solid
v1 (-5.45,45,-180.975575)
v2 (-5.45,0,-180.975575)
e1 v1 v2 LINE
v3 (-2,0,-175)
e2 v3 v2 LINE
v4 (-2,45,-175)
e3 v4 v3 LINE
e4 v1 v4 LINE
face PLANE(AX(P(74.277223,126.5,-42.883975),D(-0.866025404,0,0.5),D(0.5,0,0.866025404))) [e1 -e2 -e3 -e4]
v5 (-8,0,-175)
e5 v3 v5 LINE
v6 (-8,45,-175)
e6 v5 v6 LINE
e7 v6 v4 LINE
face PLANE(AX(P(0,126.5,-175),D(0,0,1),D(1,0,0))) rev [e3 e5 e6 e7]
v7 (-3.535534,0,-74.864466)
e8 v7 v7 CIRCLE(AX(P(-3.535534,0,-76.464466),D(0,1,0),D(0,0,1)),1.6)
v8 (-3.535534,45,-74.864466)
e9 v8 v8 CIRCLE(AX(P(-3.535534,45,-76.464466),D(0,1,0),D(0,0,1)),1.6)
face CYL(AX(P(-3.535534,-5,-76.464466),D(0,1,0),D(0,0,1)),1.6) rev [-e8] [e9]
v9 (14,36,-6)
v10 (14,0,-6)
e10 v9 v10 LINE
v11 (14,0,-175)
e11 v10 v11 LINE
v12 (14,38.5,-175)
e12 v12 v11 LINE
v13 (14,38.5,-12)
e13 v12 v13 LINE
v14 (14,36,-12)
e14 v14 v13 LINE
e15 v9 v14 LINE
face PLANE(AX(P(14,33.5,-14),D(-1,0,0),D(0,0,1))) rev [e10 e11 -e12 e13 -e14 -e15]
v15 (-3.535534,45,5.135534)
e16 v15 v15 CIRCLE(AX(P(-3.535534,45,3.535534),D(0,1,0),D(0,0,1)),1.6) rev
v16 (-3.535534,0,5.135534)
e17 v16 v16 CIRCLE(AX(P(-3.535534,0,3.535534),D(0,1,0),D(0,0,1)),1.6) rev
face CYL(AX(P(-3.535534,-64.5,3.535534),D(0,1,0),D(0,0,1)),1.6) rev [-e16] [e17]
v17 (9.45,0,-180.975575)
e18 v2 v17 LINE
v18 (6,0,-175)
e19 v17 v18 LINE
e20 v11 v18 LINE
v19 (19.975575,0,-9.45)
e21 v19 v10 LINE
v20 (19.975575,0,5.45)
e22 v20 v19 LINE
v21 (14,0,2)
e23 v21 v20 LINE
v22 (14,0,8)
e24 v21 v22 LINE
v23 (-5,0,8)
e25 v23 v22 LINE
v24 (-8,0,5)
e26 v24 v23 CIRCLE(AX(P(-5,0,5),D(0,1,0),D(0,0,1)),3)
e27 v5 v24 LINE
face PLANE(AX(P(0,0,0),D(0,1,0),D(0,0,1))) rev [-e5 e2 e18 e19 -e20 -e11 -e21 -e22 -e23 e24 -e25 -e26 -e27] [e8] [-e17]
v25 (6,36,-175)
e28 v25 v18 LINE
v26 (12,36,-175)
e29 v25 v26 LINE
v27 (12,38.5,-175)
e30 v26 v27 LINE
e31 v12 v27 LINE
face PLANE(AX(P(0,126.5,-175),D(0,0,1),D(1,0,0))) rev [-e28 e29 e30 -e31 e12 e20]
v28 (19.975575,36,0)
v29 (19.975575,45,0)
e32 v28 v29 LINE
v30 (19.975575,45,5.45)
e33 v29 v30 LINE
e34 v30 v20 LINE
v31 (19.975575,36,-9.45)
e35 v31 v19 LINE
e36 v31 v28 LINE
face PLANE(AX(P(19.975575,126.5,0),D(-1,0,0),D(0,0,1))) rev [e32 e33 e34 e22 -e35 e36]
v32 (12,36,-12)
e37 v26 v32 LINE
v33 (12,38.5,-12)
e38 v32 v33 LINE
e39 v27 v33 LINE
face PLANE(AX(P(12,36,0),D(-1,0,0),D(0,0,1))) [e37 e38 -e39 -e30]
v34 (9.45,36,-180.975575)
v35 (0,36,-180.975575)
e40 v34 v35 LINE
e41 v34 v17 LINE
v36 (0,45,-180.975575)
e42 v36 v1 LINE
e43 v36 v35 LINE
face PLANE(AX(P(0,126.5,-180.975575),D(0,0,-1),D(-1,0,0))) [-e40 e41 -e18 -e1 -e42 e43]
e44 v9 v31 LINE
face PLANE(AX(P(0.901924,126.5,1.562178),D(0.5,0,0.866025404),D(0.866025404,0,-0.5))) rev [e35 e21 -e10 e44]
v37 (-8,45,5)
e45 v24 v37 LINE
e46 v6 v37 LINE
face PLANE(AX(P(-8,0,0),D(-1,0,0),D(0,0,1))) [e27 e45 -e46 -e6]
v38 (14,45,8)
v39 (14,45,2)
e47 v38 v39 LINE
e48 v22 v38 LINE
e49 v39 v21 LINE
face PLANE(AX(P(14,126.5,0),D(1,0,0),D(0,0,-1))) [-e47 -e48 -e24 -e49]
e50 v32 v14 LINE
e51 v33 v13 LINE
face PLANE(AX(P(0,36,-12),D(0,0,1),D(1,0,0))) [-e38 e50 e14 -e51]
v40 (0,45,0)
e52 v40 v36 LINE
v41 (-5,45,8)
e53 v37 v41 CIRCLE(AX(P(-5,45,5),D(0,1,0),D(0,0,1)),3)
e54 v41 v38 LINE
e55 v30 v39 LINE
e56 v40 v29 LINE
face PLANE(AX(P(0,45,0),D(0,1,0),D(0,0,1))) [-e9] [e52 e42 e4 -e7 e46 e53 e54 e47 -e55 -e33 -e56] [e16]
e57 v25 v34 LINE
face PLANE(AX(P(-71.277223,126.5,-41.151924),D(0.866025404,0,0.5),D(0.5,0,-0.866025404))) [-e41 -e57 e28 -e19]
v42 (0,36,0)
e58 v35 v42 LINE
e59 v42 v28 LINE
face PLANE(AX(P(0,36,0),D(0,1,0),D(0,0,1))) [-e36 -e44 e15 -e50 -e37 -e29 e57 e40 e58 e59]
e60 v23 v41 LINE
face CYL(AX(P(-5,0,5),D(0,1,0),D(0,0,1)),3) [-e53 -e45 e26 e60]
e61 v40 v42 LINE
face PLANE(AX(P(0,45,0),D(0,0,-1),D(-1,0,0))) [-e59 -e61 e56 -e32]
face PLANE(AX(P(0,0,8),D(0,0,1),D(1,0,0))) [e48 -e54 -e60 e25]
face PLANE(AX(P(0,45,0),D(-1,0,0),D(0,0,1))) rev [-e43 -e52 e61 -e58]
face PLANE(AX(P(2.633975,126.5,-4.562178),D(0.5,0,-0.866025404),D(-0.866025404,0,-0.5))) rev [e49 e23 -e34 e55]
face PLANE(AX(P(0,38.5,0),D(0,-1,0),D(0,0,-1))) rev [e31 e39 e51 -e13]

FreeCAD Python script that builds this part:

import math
import FreeCAD as App
import Part
import Sketcher
Q = App.Units.Quantity


def edges_at(feature, points):
    """Names of the edges that pass closest to the given points."""
    edges = feature.Shape.Edges
    near = lambda p: min(range(len(edges)), key=lambda i: edges[i].distToShape(Part.Vertex(*p))[0])
    return sorted({f"Edge{near(p) + 1}" for p in points})

doc = App.newDocument("Part")
params = doc.addObject("Spreadsheet::Sheet", "Params")
for row, (alias, value) in enumerate([
    ("sketch1_width", "270 mm"),
    ("sketch1_width2", "250 mm"),
    ("sketch1_height", "370 mm"),
    ("sketch1_height2", "350 mm"),
    ("pad1_length", "45 mm"),
    ("sketch2_width", "250 mm"),
    ("sketch2_width2", "222 mm"),
    ("sketch2_height", "350 mm"),
    ("sketch2_height2", "322 mm"),
    ("pad2_length", "5 mm"),
    ("sketch3_width", "246 mm"),
    ("sketch3_width2", "226 mm"),
    ("sketch3_height", "346 mm"),
    ("sketch3_height2", "326 mm"),
    ("pocket1_length", "2.5 mm"),
    ("sketch4_diameter", "3.2 mm"),
    ("pocket2_length", "109.5 mm"),
    ("fillet_radius", "5 mm"),
    ("sketch5_width", "250 mm"),
    ("sketch5_width2", "222 mm"),
    ("sketch5_height", "350 mm"),
    ("sketch5_height2", "322 mm"),
    ("pad3_length", "33.5 mm"),
    ("sketch6_radius", "5 mm"),
    ("sketch6_diameter", "3.2 mm"),
    ("sketch6_width", "8 mm"),
    ("sketch6_width2", "260 mm"),
    ("sketch6_width3", "241 mm"),
    ("pocket3_length", "126.5 mm"),
    ("sketch7_diameter", "3.2 mm"),
    ("pocket4_length", "50 mm"),
    ("sketch8_width", "2 mm"),
    ("pocket5_length", "2.5 mm"),
    ("sketch9_radius", "3 mm"),
    ("sketch9_radius2", "5 mm"),
    ("sketch9_width", "19 mm"),
    ("sketch9_height", "180 mm"),
], start=1):
    params.set(f"A{row}", alias)
    params.set(f"B{row}", "=" + value)
    params.setAlias(f"B{row}", alias)

body = doc.addObject("PartDesign::Body", "Body")

# Sketch on XZ plane
sketch1 = doc.addObject("Sketcher::SketchObject", "Sketch")
body.addObject(sketch1)
sketch1.AttachmentSupport = (doc.XZ_Plane, [""])
sketch1.MapMode = "FlatFace"
sketch1.addGeometry(Part.LineSegment(App.Vector(-10, -360, 0), App.Vector(-10, 10, 0)), False)
sketch1.addGeometry(Part.LineSegment(App.Vector(-10, 10, 0), App.Vector(260, 10, 0)), False)
sketch1.addGeometry(Part.LineSegment(App.Vector(260, 10, 0), App.Vector(260, -360, 0)), False)
sketch1.addGeometry(Part.LineSegment(App.Vector(260, -360, 0), App.Vector(-10, -360, 0)), False)
sketch1.addGeometry(Part.LineSegment(App.Vector(250, 0, 0), App.Vector(0, 0, 0)), False)
sketch1.addGeometry(Part.LineSegment(App.Vector(0, 0, 0), App.Vector(0, -350, 0)), False)
sketch1.addGeometry(Part.LineSegment(App.Vector(0, -350, 0), App.Vector(250, -350, 0)), False)
sketch1.addGeometry(Part.LineSegment(App.Vector(250, -350, 0), App.Vector(250, 0, 0)), False)
sketch1.addConstraint(Sketcher.Constraint("Coincident", 0, 2, 1, 1))
sketch1.addConstraint(Sketcher.Constraint("Coincident", 1, 2, 2, 1))
sketch1.addConstraint(Sketcher.Constraint("Coincident", 2, 2, 3, 1))
sketch1.addConstraint(Sketcher.Constraint("Coincident", 3, 2, 0, 1))
sketch1.addConstraint(Sketcher.Constraint("Coincident", 4, 2, 5, 1))
sketch1.addConstraint(Sketcher.Constraint("Coincident", 5, 2, 6, 1))
sketch1.addConstraint(Sketcher.Constraint("Coincident", 6, 2, 7, 1))
sketch1.addConstraint(Sketcher.Constraint("Coincident", 7, 2, 4, 1))
sketch1.addConstraint(Sketcher.Constraint("Vertical", 0))
sketch1.addConstraint(Sketcher.Constraint("Horizontal", 1))
sketch1.addConstraint(Sketcher.Constraint("Vertical", 2))
sketch1.addConstraint(Sketcher.Constraint("Horizontal", 3))
sketch1.addConstraint(Sketcher.Constraint("Horizontal", 4))
sketch1.addConstraint(Sketcher.Constraint("Vertical", 5))
sketch1.addConstraint(Sketcher.Constraint("Horizontal", 6))
sketch1.addConstraint(Sketcher.Constraint("Vertical", 7))
sketch1.addConstraint(Sketcher.Constraint("Coincident", 4, 2, -1, 1))
sketch1.addConstraint(Sketcher.Constraint("DistanceX", 1, 1, 1, 2, 270.0))
sketch1.addConstraint(Sketcher.Constraint("DistanceX", 4, 2, 4, 1, 250.0))
sketch1.addConstraint(Sketcher.Constraint("DistanceY", 0, 1, 0, 2, 370.0))
sketch1.addConstraint(Sketcher.Constraint("DistanceY", 5, 2, 5, 1, 350.0))
sketch1.addConstraint(Sketcher.Constraint("DistanceX", 0, 2, -1, 1, 10.0))
sketch1.addConstraint(Sketcher.Constraint("DistanceY", -1, 1, 0, 2, 10.0))
sketch1.setExpression("Constraints[17]", "Params.sketch1_width")
sketch1.setExpression("Constraints[18]", "Params.sketch1_width2")
sketch1.setExpression("Constraints[19]", "Params.sketch1_height")
sketch1.setExpression("Constraints[20]", "Params.sketch1_height2")
pad1 = doc.addObject("PartDesign::Pad", "Pad")
body.addObject(pad1)
pad1.Profile = sketch1
pad1.setExpression("Length", "Params.pad1_length")
pad1.Reversed = True

# Sketch on XZ plane
sketch2 = doc.addObject("Sketcher::SketchObject", "Sketch001")
body.addObject(sketch2)
sketch2.AttachmentSupport = (doc.XZ_Plane, [""])
sketch2.MapMode = "FlatFace"
sketch2.AttachmentOffset = App.Placement(App.Vector(0, 0, -38.5), App.Rotation())
sketch2.addGeometry(Part.LineSegment(App.Vector(0, -350, 0), App.Vector(0, 0, 0)), False)
sketch2.addGeometry(Part.LineSegment(App.Vector(0, 0, 0), App.Vector(250, 0, 0)), False)
sketch2.addGeometry(Part.LineSegment(App.Vector(250, 0, 0), App.Vector(250, -350, 0)), False)
sketch2.addGeometry(Part.LineSegment(App.Vector(250, -350, 0), App.Vector(0, -350, 0)), False)
sketch2.addGeometry(Part.LineSegment(App.Vector(236, -14, 0), App.Vector(14, -14, 0)), False)
sketch2.addGeometry(Part.LineSegment(App.Vector(14, -14, 0), App.Vector(14, -336, 0)), False)
sketch2.addGeometry(Part.LineSegment(App.Vector(14, -336, 0), App.Vector(236, -336, 0)), False)
sketch2.addGeometry(Part.LineSegment(App.Vector(236, -336, 0), App.Vector(236, -14, 0)), False)
sketch2.addConstraint(Sketcher.Constraint("Coincident", 0, 2, 1, 1))
sketch2.addConstraint(Sketcher.Constraint("Coincident", 1, 2, 2, 1))
sketch2.addConstraint(Sketcher.Constraint("Coincident", 2, 2, 3, 1))
sketch2.addConstraint(Sketcher.Constraint("Coincident", 3, 2, 0, 1))
sketch2.addConstraint(Sketcher.Constraint("Coincident", 4, 2, 5, 1))
sketch2.addConstraint(Sketcher.Constraint("Coincident", 5, 2, 6, 1))
sketch2.addConstraint(Sketcher.Constraint("Coincident", 6, 2, 7, 1))
sketch2.addConstraint(Sketcher.Constraint("Coincident", 7, 2, 4, 1))
sketch2.addConstraint(Sketcher.Constraint("Vertical", 0))
sketch2.addConstraint(Sketcher.Constraint("Horizontal", 1))
sketch2.addConstraint(Sketcher.Constraint("Vertical", 2))
sketch2.addConstraint(Sketcher.Constraint("Horizontal", 3))
sketch2.addConstraint(Sketcher.Constraint("Horizontal", 4))
sketch2.addConstraint(Sketcher.Constraint("Vertical", 5))
sketch2.addConstraint(Sketcher.Constraint("Horizontal", 6))
sketch2.addConstraint(Sketcher.Constraint("Vertical", 7))
sketch2.addConstraint(Sketcher.Constraint("Coincident", 0, 2, -1, 1))
sketch2.addConstraint(Sketcher.Constraint("DistanceX", 1, 1, 1, 2, 250.0))
sketch2.addConstraint(Sketcher.Constraint("DistanceX", 4, 2, 4, 1, 222.0))
sketch2.addConstraint(Sketcher.Constraint("DistanceY", 0, 1, 0, 2, 350.0))
sketch2.addConstraint(Sketcher.Constraint("DistanceY", 5, 2, 5, 1, 322.0))
sketch2.addConstraint(Sketcher.Constraint("DistanceX", -1, 1, 4, 2, 14.0))
sketch2.addConstraint(Sketcher.Constraint("DistanceY", 4, 2, -1, 1, 14.0))
sketch2.setExpression("Constraints[17]", "Params.sketch2_width")
sketch2.setExpression("Constraints[18]", "Params.sketch2_width2")
sketch2.setExpression("Constraints[19]", "Params.sketch2_height")
sketch2.setExpression("Constraints[20]", "Params.sketch2_height2")
pad2 = doc.addObject("PartDesign::Pad", "Pad001")
body.addObject(pad2)
pad2.Profile = sketch2
pad2.setExpression("Length", "Params.pad2_length")

# Sketch on XZ plane
sketch3 = doc.addObject("Sketcher::SketchObject", "Sketch002")
body.addObject(sketch3)
sketch3.AttachmentSupport = (doc.XZ_Plane, [""])
sketch3.MapMode = "FlatFace"
sketch3.AttachmentOffset = App.Placement(App.Vector(0, 0, -38.5), App.Rotation())
sketch3.addGeometry(Part.LineSegment(App.Vector(2, -348, 0), App.Vector(2, -2, 0)), False)
sketch3.addGeometry(Part.LineSegment(App.Vector(2, -2, 0), App.Vector(248, -2, 0)), False)
sketch3.addGeometry(Part.LineSegment(App.Vector(248, -2, 0), App.Vector(248, -348, 0)), False)
sketch3.addGeometry(Part.LineSegment(App.Vector(248, -348, 0), App.Vector(2, -348, 0)), False)
sketch3.addGeometry(Part.LineSegment(App.Vector(238, -12, 0), App.Vector(12, -12, 0)), False)
sketch3.addGeometry(Part.LineSegment(App.Vector(12, -12, 0), App.Vector(12, -338, 0)), False)
sketch3.addGeometry(Part.LineSegment(App.Vector(12, -338, 0), App.Vector(238, -338, 0)), False)
sketch3.addGeometry(Part.LineSegment(App.Vector(238, -338, 0), App.Vector(238, -12, 0)), False)
sketch3.addConstraint(Sketcher.Constraint("Coincident", 0, 2, 1, 1))
sketch3.addConstraint(Sketcher.Constraint("Coincident", 1, 2, 2, 1))
sketch3.addConstraint(Sketcher.Constraint("Coincident", 2, 2, 3, 1))
sketch3.addConstraint(Sketcher.Constraint("Coincident", 3, 2, 0, 1))
sketch3.addConstraint(Sketcher.Constraint("Coincident", 4, 2, 5, 1))
sketch3.addConstraint(Sketcher.Constraint("Coincident", 5, 2, 6, 1))
sketch3.addConstraint(Sketcher.Constraint("Coincident", 6, 2, 7, 1))
sketch3.addConstraint(Sketcher.Constraint("Coincident", 7, 2, 4, 1))
sketch3.addConstraint(Sketcher.Constraint("Vertical", 0))
sketch3.addConstraint(Sketcher.Constraint("Horizontal", 1))
sketch3.addConstraint(Sketcher.Constraint("Vertical", 2))
sketch3.addConstraint(Sketcher.Constraint("Horizontal", 3))
sketch3.addConstraint(Sketcher.Constraint("Horizontal", 4))
sketch3.addConstraint(Sketcher.Constraint("Vertical", 5))
sketch3.addConstraint(Sketcher.Constraint("Horizontal", 6))
sketch3.addConstraint(Sketcher.Constraint("Vertical", 7))
sketch3.addConstraint(Sketcher.Constraint("DistanceX", 1, 1, 1, 2, 246.0))
sketch3.addConstraint(Sketcher.Constraint("DistanceX", 4, 2, 4, 1, 226.0))
sketch3.addConstraint(Sketcher.Constraint("DistanceY", 0, 1, 0, 2, 346.0))
sketch3.addConstraint(Sketcher.Constraint("DistanceY", 5, 2, 5, 1, 326.0))
sketch3.addConstraint(Sketcher.Constraint("DistanceX", -1, 1, 0, 2, 2.0))
sketch3.addConstraint(Sketcher.Constraint("DistanceY", 0, 2, -1, 1, 2.0))
sketch3.addConstraint(Sketcher.Constraint("DistanceX", -1, 1, 4, 2, 12.0))
sketch3.addConstraint(Sketcher.Constraint("DistanceY", 4, 2, -1, 1, 12.0))
sketch3.setExpression("Constraints[16]", "Params.sketch3_width")
sketch3.setExpression("Constraints[17]", "Params.sketch3_width2")
sketch3.setExpression("Constraints[18]", "Params.sketch3_height")
sketch3.setExpression("Constraints[19]", "Params.sketch3_height2")
pocket1 = doc.addObject("PartDesign::Pocket", "Pocket")
body.addObject(pocket1)
pocket1.Profile = sketch3
pocket1.setExpression("Length", "Params.pocket1_length")
pocket1.Reversed = True

# Sketch on XZ plane
sketch4 = doc.addObject("Sketcher::SketchObject", "Sketch003")
body.addObject(sketch4)
sketch4.AttachmentSupport = (doc.XZ_Plane, [""])
sketch4.MapMode = "FlatFace"
sketch4.AttachmentOffset = App.Placement(App.Vector(0, 0, -45), App.Rotation())
sketch4.addGeometry(Part.Circle(App.Vector(-3.535534, 3.535534, 0), App.Vector(0, 0, 1), 1.6), False)
sketch4.addGeometry(Part.ArcOfCircle(Part.Circle(App.Vector(-3.535534, -353.535534, 0), App.Vector(0, 0, 1), 1.6), math.radians(45), math.radians(225)), False)
sketch4.addGeometry(Part.ArcOfCircle(Part.Circle(App.Vector(-3.535534, -353.535534, 0), App.Vector(0, 0, 1), 1.6), math.radians(0), math.radians(45)), False)
sketch4.addGeometry(Part.ArcOfCircle(Part.Circle(App.Vector(-3.535534, -353.535534, 0), App.Vector(0, 0, 1), 1.6), math.radians(-135), math.radians(0)), False)
sketch4.addGeometry(Part.Circle(App.Vector(253.535534, -353.535534, 0), App.Vector(0, 0, 1), 1.6), False)
sketch4.addGeometry(Part.Circle(App.Vector(253.535534, 3.535534, 0), App.Vector(0, 0, 1), 1.6), False)
sketch4.addConstraint(Sketcher.Constraint("Tangent", 1, 1, 2, 2))
sketch4.addConstraint(Sketcher.Constraint("Tangent", 2, 1, 3, 2))
sketch4.addConstraint(Sketcher.Constraint("Tangent", 3, 1, 1, 2))
sketch4.addConstraint(Sketcher.Constraint("Equal", 0, 1))
sketch4.addConstraint(Sketcher.Constraint("Equal", 3, 4))
sketch4.addConstraint(Sketcher.Constraint("Equal", 4, 5))
sketch4.addConstraint(Sketcher.Constraint("Horizontal", 3, 3, 4, 3))
sketch4.addConstraint(Sketcher.Constraint("Horizontal", 0, 3, 5, 3))
sketch4.addConstraint(Sketcher.Constraint("Horizontal", 4, 3, 2, 1))
sketch4.addConstraint(Sketcher.Constraint("Vertical", 0, 3, 1, 3))
sketch4.addConstraint(Sketcher.Constraint("Vertical", 4, 3, 5, 3))
sketch4.addConstraint(Sketcher.Constraint("Diameter", 0, 3.2))
sketch4.addConstraint(Sketcher.Constraint("DistanceX", 1, 3, 1, 1, 1.131371))
sketch4.addConstraint(Sketcher.Constraint("DistanceX", 3, 1, 1, 3, 1.131371))
sketch4.addConstraint(Sketcher.Constraint("DistanceX", 0, 3, -1, 1, 3.535534))
sketch4.addConstraint(Sketcher.Constraint("DistanceY", -1, 1, 0, 3, 3.535534))
sketch4.addConstraint(Sketcher.Constraint("DistanceY", 1, 3, -1, 1, 353.535534))
sketch4.addConstraint(Sketcher.Constraint("DistanceX", -1, 1, 4, 3, 253.535534))
sketch4.setExpression("Constraints[11]", "Params.sketch4_diameter")
pocket2 = doc.addObject("PartDesign::Pocket", "Pocket001")
body.addObject(pocket2)
pocket2.Profile = sketch4
pocket2.setExpression("Length", "Params.pocket2_length")
pocket2.Reversed = True
doc.recompute()

fillet = doc.addObject("PartDesign::Fillet", "Fillet")
body.addObject(fillet)
fillet.Base = (pocket2, edges_at(pocket2, [
    (-10, 22.5, 10),
    (-10, 22.5, -360),
    (260, 22.5, -360),
    (260, 22.5, 10),
]))
fillet.setExpression("Radius", "Params.fillet_radius")

# Sketch on XZ plane
sketch5 = doc.addObject("Sketcher::SketchObject", "Sketch004")
body.addObject(sketch5)
sketch5.AttachmentSupport = (doc.XZ_Plane, [""])
sketch5.MapMode = "FlatFace"
sketch5.AttachmentOffset = App.Placement(App.Vector(0, 0, -33.5), App.Rotation())
sketch5.addGeometry(Part.LineSegment(App.Vector(0, 0, 0), App.Vector(0, -350, 0)), False)
sketch5.addGeometry(Part.LineSegment(App.Vector(0, -350, 0), App.Vector(250, -350, 0)), False)
sketch5.addGeometry(Part.LineSegment(App.Vector(250, -350, 0), App.Vector(250, 0, 0)), False)
sketch5.addGeometry(Part.LineSegment(App.Vector(250, 0, 0), App.Vector(0, 0, 0)), False)
sketch5.addGeometry(Part.LineSegment(App.Vector(236, -336, 0), App.Vector(14, -336, 0)), False)
sketch5.addGeometry(Part.LineSegment(App.Vector(14, -336, 0), App.Vector(14, -14, 0)), False)
sketch5.addGeometry(Part.LineSegment(App.Vector(14, -14, 0), App.Vector(236, -14, 0)), False)
sketch5.addGeometry(Part.LineSegment(App.Vector(236, -14, 0), App.Vector(236, -336, 0)), False)
sketch5.addConstraint(Sketcher.Constraint("Coincident", 0, 2, 1, 1))
sketch5.addConstraint(Sketcher.Constraint("Coincident", 1, 2, 2, 1))
sketch5.addConstraint(Sketcher.Constraint("Coincident", 2, 2, 3, 1))
sketch5.addConstraint(Sketcher.Constraint("Coincident", 3, 2, 0, 1))
sketch5.addConstraint(Sketcher.Constraint("Coincident", 4, 2, 5, 1))
sketch5.addConstraint(Sketcher.Constraint("Coincident", 5, 2, 6, 1))
sketch5.addConstraint(Sketcher.Constraint("Coincident", 6, 2, 7, 1))
sketch5.addConstraint(Sketcher.Constraint("Coincident", 7, 2, 4, 1))
sketch5.addConstraint(Sketcher.Constraint("Vertical", 0))
sketch5.addConstraint(Sketcher.Constraint("Horizontal", 1))
sketch5.addConstraint(Sketcher.Constraint("Vertical", 2))
sketch5.addConstraint(Sketcher.Constraint("Horizontal", 3))
sketch5.addConstraint(Sketcher.Constraint("Horizontal", 4))
sketch5.addConstraint(Sketcher.Constraint("Vertical", 5))
sketch5.addConstraint(Sketcher.Constraint("Horizontal", 6))
sketch5.addConstraint(Sketcher.Constraint("Vertical", 7))
sketch5.addConstraint(Sketcher.Constraint("Coincident", 3, 2, -1, 1))
sketch5.addConstraint(Sketcher.Constraint("DistanceX", 1, 1, 1, 2, 250.0))
sketch5.addConstraint(Sketcher.Constraint("DistanceX", 4, 2, 4, 1, 222.0))
sketch5.addConstraint(Sketcher.Constraint("DistanceY", 0, 2, 0, 1, 350.0))
sketch5.addConstraint(Sketcher.Constraint("DistanceY", 5, 1, 5, 2, 322.0))
sketch5.addConstraint(Sketcher.Constraint("DistanceX", -1, 1, 4, 2, 14.0))
sketch5.addConstraint(Sketcher.Constraint("DistanceY", 4, 2, -1, 1, 336.0))
sketch5.setExpression("Constraints[17]", "Params.sketch5_width")
sketch5.setExpression("Constraints[18]", "Params.sketch5_width2")
sketch5.setExpression("Constraints[19]", "Params.sketch5_height")
sketch5.setExpression("Constraints[20]", "Params.sketch5_height2")
pad3 = doc.addObject("PartDesign::Pad", "Pad002")
body.addObject(pad3)
pad3.Profile = sketch5
pad3.setExpression("Length", "Params.pad3_length")

# Sketch on XZ plane
sketch6 = doc.addObject("Sketcher::SketchObject", "Sketch005")
body.addObject(sketch6)
sketch6.AttachmentSupport = (doc.XZ_Plane, [""])
sketch6.MapMode = "FlatFace"
sketch6.AttachmentOffset = App.Placement(App.Vector(0, 0, -126.5), App.Rotation())
sketch6.addGeometry(Part.LineSegment(App.Vector(14, -175, 0), App.Vector(6, -175, 0)), False)
sketch6.addGeometry(Part.LineSegment(App.Vector(6, -175, 0), App.Vector(9.45, -180.975575, 0)), False)
sketch6.addGeometry(Part.LineSegment(App.Vector(9.45, -180.975575, 0), App.Vector(-5.45, -180.975575, 0)), False)
sketch6.addGeometry(Part.LineSegment(App.Vector(-5.45, -180.975575, 0), App.Vector(-2, -175, 0)), False)
sketch6.addGeometry(Part.LineSegment(App.Vector(-2, -175, 0), App.Vector(-10, -175, 0)), False)
sketch6.addGeometry(Part.LineSegment(App.Vector(-10, -175, 0), App.Vector(-10, -355, 0)), False)
sketch6.addGeometry(Part.ArcOfCircle(Part.Circle(App.Vector(-5, -355, 0), App.Vector(0, 0, 1), 5), math.radians(180), math.radians(270)), False)
sketch6.addGeometry(Part.LineSegment(App.Vector(-5, -360, 0), App.Vector(255, -360, 0)), False)
sketch6.addGeometry(Part.ArcOfCircle(Part.Circle(App.Vector(255, -355, 0), App.Vector(0, 0, 1), 5), math.radians(-90), math.radians(0)), False)
sketch6.addGeometry(Part.LineSegment(App.Vector(260, -355, 0), App.Vector(260, 5, 0)), False)
sketch6.addGeometry(Part.ArcOfCircle(Part.Circle(App.Vector(255, 5, 0), App.Vector(0, 0, 1), 5), math.radians(0), math.radians(90)), False)
sketch6.addGeometry(Part.LineSegment(App.Vector(255, 10, 0), App.Vector(14, 10, 0)), False)
sketch6.addGeometry(Part.LineSegment(App.Vector(14, 10, 0), App.Vector(14, 2, 0)), False)
sketch6.addGeometry(Part.LineSegment(App.Vector(14, 2, 0), App.Vector(19.975575, 5.45, 0)), False)
sketch6.addGeometry(Part.LineSegment(App.Vector(19.975575, 5.45, 0), App.Vector(19.975575, -9.45, 0)), False)
sketch6.addGeometry(Part.LineSegment(App.Vector(19.975575, -9.45, 0), App.Vector(14, -6, 0)), False)
sketch6.addGeometry(Part.LineSegment(App.Vector(14, -6, 0), App.Vector(14, -14, 0)), False)
sketch6.addGeometry(Part.LineSegment(App.Vector(14, -14, 0), App.Vector(236, -14, 0)), False)
sketch6.addGeometry(Part.LineSegment(App.Vector(236, -14, 0), App.Vector(236, -336, 0)), False)
sketch6.addGeometry(Part.LineSegment(App.Vector(236, -336, 0), App.Vector(14, -336, 0)), False)
sketch6.addGeometry(Part.LineSegment(App.Vector(14, -336, 0), App.Vector(14, -175, 0)), False)
sketch6.addGeometry(Part.Circle(App.Vector(253.535534, 3.535534, 0), App.Vector(0, 0, 1), 1.6), False)
sketch6.addConstraint(Sketcher.Constraint("Coincident", 0, 2, 1, 1))
sketch6.addConstraint(Sketcher.Constraint("Coincident", 1, 2, 2, 1))
sketch6.addConstraint(Sketcher.Constraint("Coincident", 2, 2, 3, 1))
sketch6.addConstraint(Sketcher.Constraint("Coincident", 3, 2, 4, 1))
sketch6.addConstraint(Sketcher.Constraint("Coincident", 4, 2, 5, 1))
sketch6.addConstraint(Sketcher.Constraint("Tangent", 5, 2, 6, 1))
sketch6.addConstraint(Sketcher.Constraint("Tangent", 6, 2, 7, 1))
sketch6.addConstraint(Sketcher.Constraint("Tangent", 7, 2, 8, 1))
sketch6.addConstraint(Sketcher.Constraint("Tangent", 8, 2, 9, 1))
sketch6.addConstraint(Sketcher.Constraint("Tangent", 9, 2, 10, 1))
sketch6.addConstraint(Sketcher.Constraint("Tangent", 10, 2, 11, 1))
sketch6.addConstraint(Sketcher.Constraint("Coincident", 11, 2, 12, 1))
sketch6.addConstraint(Sketcher.Constraint("Coincident", 12, 2, 13, 1))
sketch6.addConstraint(Sketcher.Constraint("Coincident", 13, 2, 14, 1))
sketch6.addConstraint(Sketcher.Constraint("Coincident", 14, 2, 15, 1))
sketch6.addConstraint(Sketcher.Constraint("Coincident", 15, 2, 16, 1))
sketch6.addConstraint(Sketcher.Constraint("Coincident", 16, 2, 17, 1))
sketch6.addConstraint(Sketcher.Constraint("Coincident", 17, 2, 18, 1))
sketch6.addConstraint(Sketcher.Constraint("Coincident", 18, 2, 19, 1))
sketch6.addConstraint(Sketcher.Constraint("Coincident", 19, 2, 20, 1))
sketch6.addConstraint(Sketcher.Constraint("Coincident", 20, 2, 0, 1))
sketch6.addConstraint(Sketcher.Constraint("Horizontal", 0))
sketch6.addConstraint(Sketcher.Constraint("Horizontal", 2))
sketch6.addConstraint(Sketcher.Constraint("Horizontal", 4))
sketch6.addConstraint(Sketcher.Constraint("Vertical", 5))
sketch6.addConstraint(Sketcher.Constraint("Horizontal", 7))
sketch6.addConstraint(Sketcher.Constraint("Vertical", 9))
sketch6.addConstraint(Sketcher.Constraint("Horizontal", 11))
sketch6.addConstraint(Sketcher.Constraint("Vertical", 12))
sketch6.addConstraint(Sketcher.Constraint("Vertical", 14))
sketch6.addConstraint(Sketcher.Constraint("Vertical", 16))
sketch6.addConstraint(Sketcher.Constraint("Horizontal", 17))
sketch6.addConstraint(Sketcher.Constraint("Vertical", 18))
sketch6.addConstraint(Sketcher.Constraint("Horizontal", 19))
sketch6.addConstraint(Sketcher.Constraint("Vertical", 20))
sketch6.addConstraint(Sketcher.Constraint("Equal", 6, 8))
sketch6.addConstraint(Sketcher.Constraint("Equal", 8, 10))
sketch6.addConstraint(Sketcher.Constraint("Perpendicular", 1, 13))
sketch6.addConstraint(Sketcher.Constraint("Perpendicular", 3, 15))
sketch6.addConstraint(Sketcher.Constraint("Horizontal", 0, 2, 3, 2))
sketch6.addConstraint(Sketcher.Constraint("Vertical", 12, 2, 15, 2))
sketch6.addConstraint(Sketcher.Constraint("Vertical", 16, 2, 19, 2))
sketch6.addConstraint(Sketcher.Constraint("Equal", 0, 4))
sketch6.addConstraint(Sketcher.Constraint("Equal", 4, 12))
sketch6.addConstraint(Sketcher.Constraint("Equal", 2, 14))
sketch6.addConstraint(Sketcher.Constraint("Equal", 12, 16))
sketch6.addConstraint(Sketcher.Constraint("Equal", 1, 3))
sketch6.addConstraint(Sketcher.Constraint("Equal", 3, 13))
sketch6.addConstraint(Sketcher.Constraint("Radius", 6, 5.0))
sketch6.addConstraint(Sketcher.Constraint("Diameter", 21, 3.2))
sketch6.addConstraint(Sketcher.Constraint("DistanceX", 0, 2, 0, 1, 8.0))
sketch6.addConstraint(Sketcher.Constraint("DistanceX", 7, 1, 7, 2, 260.0))
sketch6.addConstraint(Sketcher.Constraint("DistanceX", 11, 2, 11, 1, 241.0))
sketch6.addConstraint(Sketcher.Constraint("DistanceX", 17, 1, 17, 2, 222.0))
sketch6.addConstraint(Sketcher.Constraint("DistanceY", 5, 2, 5, 1, 180.0))
sketch6.addConstraint(Sketcher.Constraint("DistanceY", 9, 1, 9, 2, 360.0))
sketch6.addConstraint(Sketcher.Constraint("DistanceY", 18, 2, 18, 1, 322.0))
sketch6.addConstraint(Sketcher.Constraint("Angle", 1, Q("-60 deg")))
sketch6.addConstraint(Sketcher.Constraint("DistanceX", 2, 2, 2, 1, 14.9))
sketch6.addConstraint(Sketcher.Constraint("DistanceX", 6, 3, -1, 1, 5.0))
sketch6.addConstraint(Sketcher.Constraint("DistanceY", 6, 3, -1, 1, 355.0))
sketch6.addConstraint(Sketcher.Constraint("DistanceY", 1, 2, 21, 3, 184.511109))
sketch6.addConstraint(Sketcher.Constraint("DistanceX", -1, 1, 21, 3, 253.535534))
sketch6.setExpression("Constraints[48]", "Params.sketch6_radius")
sketch6.setExpression("Constraints[49]", "Params.sketch6_diameter")
sketch6.setExpression("Constraints[50]", "Params.sketch6_width")
sketch6.setExpression("Constraints[51]", "Params.sketch6_width2")
sketch6.setExpression("Constraints[52]", "Params.sketch6_width3")
pocket3 = doc.addObject("PartDesign::Pocket", "Pocket002")
body.addObject(pocket3)
pocket3.Profile = sketch6
pocket3.setExpression("Length", "Params.pocket3_length")
pocket3.Reversed = True

# Sketch on XZ plane
sketch7 = doc.addObject("Sketcher::SketchObject", "Sketch006")
body.addObject(sketch7)
sketch7.AttachmentSupport = (doc.XZ_Plane, [""])
sketch7.MapMode = "FlatFace"
sketch7.AttachmentOffset = App.Placement(App.Vector(0, 0, -45), App.Rotation())
sketch7.addGeometry(Part.Circle(App.Vector(-3.535534, -76.464466, 0), App.Vector(0, 0, 1), 1.6), False)
sketch7.addConstraint(Sketcher.Constraint("Diameter", 0, 3.2))
sketch7.addConstraint(Sketcher.Constraint("DistanceX", 0, 3, -1, 1, 3.535534))
sketch7.addConstraint(Sketcher.Constraint("DistanceY", 0, 3, -1, 1, 76.464466))
sketch7.setExpression("Constraints[0]", "Params.sketch7_diameter")
pocket4 = doc.addObject("PartDesign::Pocket", "Pocket003")
body.addObject(pocket4)
pocket4.Profile = sketch7
pocket4.setExpression("Length", "Params.pocket4_length")
pocket4.Reversed = True

# Sketch on XZ plane
sketch8 = doc.addObject("Sketcher::SketchObject", "Sketch007")
body.addObject(sketch8)
sketch8.AttachmentSupport = (doc.XZ_Plane, [""])
sketch8.MapMode = "FlatFace"
sketch8.AttachmentOffset = App.Placement(App.Vector(0, 0, -38.5), App.Rotation())
sketch8.addGeometry(Part.LineSegment(App.Vector(0, 0, 0), App.Vector(19.975575, 0, 0)), False)
sketch8.addGeometry(Part.LineSegment(App.Vector(19.975575, 0, 0), App.Vector(19.975575, -2, 0)), False)
sketch8.addGeometry(Part.LineSegment(App.Vector(19.975575, -2, 0), App.Vector(2, -2, 0)), False)
sketch8.addGeometry(Part.LineSegment(App.Vector(2, -2, 0), App.Vector(2, -180.975575, 0)), False)
sketch8.addGeometry(Part.LineSegment(App.Vector(2, -180.975575, 0), App.Vector(0, -180.975575, 0)), False)
sketch8.addGeometry(Part.LineSegment(App.Vector(0, -180.975575, 0), App.Vector(0, 0, 0)), False)
sketch8.addConstraint(Sketcher.Constraint("Coincident", 0, 2, 1, 1))
sketch8.addConstraint(Sketcher.Constraint("Coincident", 1, 2, 2, 1))
sketch8.addConstraint(Sketcher.Constraint("Coincident", 2, 2, 3, 1))
sketch8.addConstraint(Sketcher.Constraint("Coincident", 3, 2, 4, 1))
sketch8.addConstraint(Sketcher.Constraint("Coincident", 4, 2, 5, 1))
sketch8.addConstraint(Sketcher.Constraint("Coincident", 5, 2, 0, 1))
sketch8.addConstraint(Sketcher.Constraint("Horizontal", 0))
sketch8.addConstraint(Sketcher.Constraint("Vertical", 1))
sketch8.addConstraint(Sketcher.Constraint("Horizontal", 2))
sketch8.addConstraint(Sketcher.Constraint("Vertical", 3))
sketch8.addConstraint(Sketcher.Constraint("Horizontal", 4))
sketch8.addConstraint(Sketcher.Constraint("Vertical", 5))
sketch8.addConstraint(Sketcher.Constraint("Coincident", 5, 2, -1, 1))
sketch8.addConstraint(Sketcher.Constraint("Equal", 4, 1))
sketch8.addConstraint(Sketcher.Constraint("DistanceX", 4, 2, 4, 1, 2.0))
sketch8.addConstraint(Sketcher.Constraint("DistanceX", 0, 1, 0, 2, 19.975575))
sketch8.addConstraint(Sketcher.Constraint("DistanceY", 3, 2, 3, 1, 178.975575))
sketch8.setExpression("Constraints[14]", "Params.sketch8_width")
pocket5 = doc.addObject("PartDesign::Pocket", "Pocket004")
body.addObject(pocket5)
pocket5.Profile = sketch8
pocket5.setExpression("Length", "Params.pocket5_length")
pocket5.Reversed = True

# Sketch on XZ plane
sketch9 = doc.addObject("Sketcher::SketchObject", "Sketch008")
body.addObject(sketch9)
sketch9.AttachmentSupport = (doc.XZ_Plane, [""])
sketch9.MapMode = "FlatFace"
sketch9.AttachmentOffset = App.Placement(App.Vector(0, 0, -45), App.Rotation())
sketch9.addGeometry(Part.LineSegment(App.Vector(14, 10, 0), App.Vector(14, 8, 0)), False)
sketch9.addGeometry(Part.LineSegment(App.Vector(14, 8, 0), App.Vector(-5, 8, 0)), False)
sketch9.addGeometry(Part.ArcOfCircle(Part.Circle(App.Vector(-5, 5, 0), App.Vector(0, 0, 1), 3), math.radians(90), math.radians(180)), False)
sketch9.addGeometry(Part.LineSegment(App.Vector(-8, 5, 0), App.Vector(-8, -175, 0)), False)
sketch9.addGeometry(Part.LineSegment(App.Vector(-8, -175, 0), App.Vector(-10, -175, 0)), False)
sketch9.addGeometry(Part.LineSegment(App.Vector(-10, -175, 0), App.Vector(-10, 5, 0)), False)
sketch9.addGeometry(Part.ArcOfCircle(Part.Circle(App.Vector(-5, 5, 0), App.Vector(0, 0, 1), 5), math.radians(90), math.radians(180)), False)
sketch9.addGeometry(Part.LineSegment(App.Vector(-5, 10, 0), App.Vector(14, 10, 0)), False)
sketch9.addConstraint(Sketcher.Constraint("Coincident", 0, 2, 1, 1))
sketch9.addConstraint(Sketcher.Constraint("Tangent", 1, 2, 2, 1))
sketch9.addConstraint(Sketcher.Constraint("Tangent", 2, 2, 3, 1))
sketch9.addConstraint(Sketcher.Constraint("Coincident", 3, 2, 4, 1))
sketch9.addConstraint(Sketcher.Constraint("Coincident", 4, 2, 5, 1))
sketch9.addConstraint(Sketcher.Constraint("Tangent", 5, 2, 6, 2))
sketch9.addConstraint(Sketcher.Constraint("Tangent", 6, 1, 7, 1))
sketch9.addConstraint(Sketcher.Constraint("Coincident", 7, 2, 0, 1))
sketch9.addConstraint(Sketcher.Constraint("Vertical", 0))
sketch9.addConstraint(Sketcher.Constraint("Horizontal", 1))
sketch9.addConstraint(Sketcher.Constraint("Vertical", 3))
sketch9.addConstraint(Sketcher.Constraint("Horizontal", 4))
sketch9.addConstraint(Sketcher.Constraint("Vertical", 5))
sketch9.addConstraint(Sketcher.Constraint("Horizontal", 7))
sketch9.addConstraint(Sketcher.Constraint("Coincident", 6, 3, 2, 3))
sketch9.addConstraint(Sketcher.Constraint("Radius", 2, 3.0))
sketch9.addConstraint(Sketcher.Constraint("Radius", 6, 5.0))
sketch9.addConstraint(Sketcher.Constraint("DistanceX", 1, 2, 1, 1, 19.0))
sketch9.addConstraint(Sketcher.Constraint("DistanceY", 3, 2, 3, 1, 180.0))
sketch9.addConstraint(Sketcher.Constraint("DistanceX", 2, 3, -1, 1, 5.0))
sketch9.addConstraint(Sketcher.Constraint("DistanceY", -1, 1, 2, 3, 5.0))
sketch9.setExpression("Constraints[15]", "Params.sketch9_radius")
sketch9.setExpression("Constraints[16]", "Params.sketch9_radius2")
sketch9.setExpression("Constraints[17]", "Params.sketch9_width")
sketch9.setExpression("Constraints[18]", "Params.sketch9_height")
pocket6 = doc.addObject("PartDesign::Pocket", "Pocket005")
body.addObject(pocket6)
pocket6.Profile = sketch9
pocket6.Type = "ThroughAll"
pocket6.Midplane = True

doc.recompute()
